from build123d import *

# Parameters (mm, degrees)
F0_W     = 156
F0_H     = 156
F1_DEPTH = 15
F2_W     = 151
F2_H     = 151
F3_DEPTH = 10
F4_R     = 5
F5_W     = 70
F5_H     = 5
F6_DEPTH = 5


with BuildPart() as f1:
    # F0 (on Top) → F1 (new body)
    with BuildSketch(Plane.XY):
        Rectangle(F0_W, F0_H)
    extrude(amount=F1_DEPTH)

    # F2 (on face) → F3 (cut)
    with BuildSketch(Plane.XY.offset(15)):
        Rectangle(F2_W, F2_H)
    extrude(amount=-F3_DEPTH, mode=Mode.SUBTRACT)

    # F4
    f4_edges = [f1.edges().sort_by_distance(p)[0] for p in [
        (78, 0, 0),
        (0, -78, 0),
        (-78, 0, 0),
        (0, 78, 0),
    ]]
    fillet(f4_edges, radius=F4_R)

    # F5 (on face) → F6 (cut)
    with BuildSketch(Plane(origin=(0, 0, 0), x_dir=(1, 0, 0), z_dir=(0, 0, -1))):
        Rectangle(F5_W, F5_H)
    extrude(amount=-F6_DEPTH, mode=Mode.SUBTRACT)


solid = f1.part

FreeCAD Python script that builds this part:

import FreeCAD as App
import Part
import Sketcher
from FreeCAD import Vector


def edges_at(feature, points):
    """Names of the edges that pass closest to the given points."""
    edges = feature.Shape.Edges
    near = lambda p: min(range(len(edges)), key=lambda i: edges[i].distToShape(Part.Vertex(*p))[0])
    return sorted({f"Edge{near(p) + 1}" for p in points})


def add_polygon(sketch, points):
    """Adds a closed chain of lines whose ends are joined by coincident constraints."""
    first, n = sketch.GeometryCount, len(points)
    for a, b in zip(points, points[1:] + points[:1]):
        sketch.addGeometry(Part.LineSegment(App.Vector(*a, 0), App.Vector(*b, 0)), False)
    for i in range(n):
        sketch.addConstraint(Sketcher.Constraint("Coincident", first + i, 2, first + (i + 1) % n, 1))

doc = App.newDocument("Part")
body = doc.addObject("PartDesign::Body", "Body")

# Sketch on XY plane
sketch1 = body.newObject("Sketcher::SketchObject", "Sketch")
sketch1.AttachmentSupport = (doc.getObject("XY_Plane"), [""])
sketch1.MapMode = "FlatFace"
add_polygon(sketch1, [(-78, 78), (-78, -78), (78, -78), (78, 78)])  # lines 0-3
sketch1.addConstraint(Sketcher.Constraint("Vertical", 0))
sketch1.addConstraint(Sketcher.Constraint("Horizontal", 1))
sketch1.addConstraint(Sketcher.Constraint("Vertical", 2))
sketch1.addConstraint(Sketcher.Constraint("Horizontal", 3))
sketch1.addConstraint(Sketcher.Constraint("Symmetric", 0, 2, 2, 2, -1, 1))
sketch1.addConstraint(Sketcher.Constraint("Equal", 3, 0))
sketch1.addConstraint(Sketcher.Constraint("DistanceX", 1, 1, 1, 2, 156.0))
pad1 = body.newObject("PartDesign::Pad", "Pad")
pad1.Profile = sketch1
pad1.Length = 15

# Sketch on XY plane
sketch2 = body.newObject("Sketcher::SketchObject", "Sketch001")
sketch2.AttachmentSupport = (doc.getObject("XY_Plane"), [""])
sketch2.MapMode = "FlatFace"
sketch2.AttachmentOffset = App.Placement(Vector(0, 0, 15), App.Rotation())
add_polygon(sketch2, [(-76, 76), (-76, -76), (76, -76), (76, 76)])  # lines 0-3
sketch2.addConstraint(Sketcher.Constraint("Vertical", 0))
sketch2.addConstraint(Sketcher.Constraint("Horizontal", 1))
sketch2.addConstraint(Sketcher.Constraint("Vertical", 2))
sketch2.addConstraint(Sketcher.Constraint("Horizontal", 3))
sketch2.addConstraint(Sketcher.Constraint("Symmetric", 0, 2, 2, 2, -1, 1))
sketch2.addConstraint(Sketcher.Constraint("Equal", 3, 0))
sketch2.addConstraint(Sketcher.Constraint("DistanceX", 1, 1, 1, 2, 151.0))
pocket1 = body.newObject("PartDesign::Pocket", "Pocket")
pocket1.Profile = sketch2
pocket1.Length = 10
doc.recompute()

fillet = body.newObject("PartDesign::Fillet", "Fillet")
fillet.Base = (pocket1, edges_at(pocket1, [
    (78, 0, 0),
    (0, -78, 0),
    (-78, 0, 0),
    (0, 78, 0),
]))
fillet.Radius = 5

# Sketch on XY plane
sketch3 = body.newObject("Sketcher::SketchObject", "Sketch002")
sketch3.AttachmentSupport = (doc.getObject("XY_Plane"), [""])
sketch3.MapMode = "FlatFace"
add_polygon(sketch3, [(-35, -2), (-35, 2), (35, 2), (35, -2)])  # lines 0-3
sketch3.addConstraint(Sketcher.Constraint("Vertical", 0))
sketch3.addConstraint(Sketcher.Constraint("Horizontal", 1))
sketch3.addConstraint(Sketcher.Constraint("Vertical", 2))
sketch3.addConstraint(Sketcher.Constraint("Horizontal", 3))
sketch3.addConstraint(Sketcher.Constraint("Symmetric", 0, 2, 2, 2, -1, 1))
sketch3.addConstraint(Sketcher.Constraint("DistanceX", 1, 1, 1, 2, 70.0))
sketch3.addConstraint(Sketcher.Constraint("DistanceY", 0, 1, 0, 2, 5.0))
pocket2 = body.newObject("PartDesign::Pocket", "Pocket001")
pocket2.Profile = sketch3
pocket2.Length = 5
pocket2.Reversed = True

doc.recompute()
